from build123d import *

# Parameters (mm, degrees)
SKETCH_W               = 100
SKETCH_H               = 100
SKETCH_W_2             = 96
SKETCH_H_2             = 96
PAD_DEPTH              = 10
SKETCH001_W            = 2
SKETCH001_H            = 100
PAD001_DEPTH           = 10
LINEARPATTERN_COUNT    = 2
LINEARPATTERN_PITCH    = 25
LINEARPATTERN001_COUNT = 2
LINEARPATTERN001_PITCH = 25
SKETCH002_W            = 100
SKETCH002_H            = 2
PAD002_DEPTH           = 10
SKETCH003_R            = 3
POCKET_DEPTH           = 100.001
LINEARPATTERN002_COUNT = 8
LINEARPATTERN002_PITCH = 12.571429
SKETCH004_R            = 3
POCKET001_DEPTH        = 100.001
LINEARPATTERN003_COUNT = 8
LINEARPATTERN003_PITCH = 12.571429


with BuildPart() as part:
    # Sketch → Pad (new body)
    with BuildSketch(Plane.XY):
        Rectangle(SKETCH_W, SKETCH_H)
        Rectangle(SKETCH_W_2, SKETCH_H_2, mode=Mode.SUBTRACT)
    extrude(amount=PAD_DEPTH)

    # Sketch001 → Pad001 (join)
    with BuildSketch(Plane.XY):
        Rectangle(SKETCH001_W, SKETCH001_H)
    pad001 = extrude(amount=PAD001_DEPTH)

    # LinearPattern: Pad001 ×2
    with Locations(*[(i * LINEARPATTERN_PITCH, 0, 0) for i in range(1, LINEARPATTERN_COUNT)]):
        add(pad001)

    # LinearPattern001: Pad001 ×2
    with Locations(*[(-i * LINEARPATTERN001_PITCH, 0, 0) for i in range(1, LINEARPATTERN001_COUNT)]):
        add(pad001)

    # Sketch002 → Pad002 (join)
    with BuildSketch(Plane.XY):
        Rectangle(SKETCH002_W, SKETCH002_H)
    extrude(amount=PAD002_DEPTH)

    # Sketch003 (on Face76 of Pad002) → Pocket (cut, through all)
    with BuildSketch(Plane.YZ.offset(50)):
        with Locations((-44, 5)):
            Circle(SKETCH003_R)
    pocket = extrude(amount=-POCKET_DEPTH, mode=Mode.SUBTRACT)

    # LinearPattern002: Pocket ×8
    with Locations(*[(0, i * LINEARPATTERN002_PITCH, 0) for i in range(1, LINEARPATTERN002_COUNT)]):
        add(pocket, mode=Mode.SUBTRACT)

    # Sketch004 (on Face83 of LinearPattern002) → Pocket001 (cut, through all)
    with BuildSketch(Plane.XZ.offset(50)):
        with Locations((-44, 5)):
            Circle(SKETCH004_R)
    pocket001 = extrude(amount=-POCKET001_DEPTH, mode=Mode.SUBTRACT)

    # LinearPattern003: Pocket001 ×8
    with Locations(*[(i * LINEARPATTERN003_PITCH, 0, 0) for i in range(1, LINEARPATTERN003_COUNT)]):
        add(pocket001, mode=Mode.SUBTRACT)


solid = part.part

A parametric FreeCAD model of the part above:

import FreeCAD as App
import Part
import Sketcher

V = App.Vector
Q = App.Units.Quantity


def add_polygon(sketch, points):
    """Adds a closed chain of lines whose ends are joined by coincident constraints."""
    first, n = sketch.GeometryCount, len(points)
    for a, b in zip(points, points[1:] + points[:1]):
        sketch.addGeometry(Part.LineSegment(App.Vector(*a, 0), App.Vector(*b, 0)), False)
    for i in range(n):
        sketch.addConstraint(Sketcher.Constraint("Coincident", first + i, 2, first + (i + 1) % n, 1))

doc = App.newDocument("Part")
body = doc.addObject("PartDesign::Body", "Body")

# Sketch on XY plane
sketch1 = body.newObject("Sketcher::SketchObject", "Sketch")
sketch1.AttachmentSupport = (doc.getObject("XY_Plane"), [""])
sketch1.MapMode = "FlatFace"
add_polygon(sketch1, [(-50, 50), (-50, -50), (50, -50), (50, 50)])  # lines 0-3
add_polygon(sketch1, [(48, -48), (-48, -48), (-48, 48), (48, 48)])  # lines 4-7
sketch1.addConstraint([
    Sketcher.Constraint("Vertical", 0),
    Sketcher.Constraint("Horizontal", 1),
    Sketcher.Constraint("Vertical", 2),
    Sketcher.Constraint("Horizontal", 3),
    Sketcher.Constraint("Horizontal", 4),
    Sketcher.Constraint("Vertical", 5),
    Sketcher.Constraint("Horizontal", 6),
    Sketcher.Constraint("Vertical", 7),
    Sketcher.Constraint("Symmetric", 0, 2, 2, 2, -1, 1),
    Sketcher.Constraint("Symmetric", 4, 2, 6, 2, -1, 1),
    Sketcher.Constraint("Equal", 3, 0),
    Sketcher.Constraint("Equal", 6, 5),
    Sketcher.Constraint("DistanceX", 1, 1, 1, 2, Q("100 mm")),
    Sketcher.Constraint("DistanceX", 4, 2, 4, 1, Q("96 mm")),
])
pad1 = body.newObject("PartDesign::Pad", "Pad")
pad1.Profile = sketch1
pad1.Length = 10

# Sketch on XY plane
sketch2 = body.newObject("Sketcher::SketchObject", "Sketch001")
sketch2.AttachmentSupport = (doc.getObject("XY_Plane"), [""])
sketch2.MapMode = "FlatFace"
add_polygon(sketch2, [(-1, 50), (-1, -50), (1, -50), (1, 50)])  # lines 0-3
sketch2.addConstraint([
    Sketcher.Constraint("Vertical", 0),
    Sketcher.Constraint("Horizontal", 1),
    Sketcher.Constraint("Vertical", 2),
    Sketcher.Constraint("Horizontal", 3),
    Sketcher.Constraint("Symmetric", 0, 2, 2, 2, -1, 1),
    Sketcher.Constraint("DistanceX", 1, 1, 1, 2, Q("2 mm")),
    Sketcher.Constraint("DistanceY", 0, 2, 0, 1, Q("100 mm")),
])
pad2 = body.newObject("PartDesign::Pad", "Pad001")
pad2.Profile = sketch2
pad2.Length = 10
doc.recompute()

linearpattern = body.newObject("PartDesign::LinearPattern", "LinearPattern")
linearpattern.Originals = [pad2]
linearpattern.Direction = (doc.getObject("X_Axis"), [""])
linearpattern.Mode = "offset"
linearpattern.Offset = 25
linearpattern.Occurrences = 2
body.Tip = linearpattern
doc.recompute()

linearpattern2 = body.newObject("PartDesign::LinearPattern", "LinearPattern001")
linearpattern2.Originals = [pad2]
linearpattern2.Direction = (doc.getObject("X_Axis"), [""])
linearpattern2.Mode = "offset"
linearpattern2.Offset = 25
linearpattern2.Occurrences = 2
linearpattern2.Reversed = True
body.Tip = linearpattern2

# Sketch on XY plane
sketch3 = body.newObject("Sketcher::SketchObject", "Sketch002")
sketch3.AttachmentSupport = (doc.getObject("XY_Plane"), [""])
sketch3.MapMode = "FlatFace"
add_polygon(sketch3, [(-50, 1), (-50, -1), (50, -1), (50, 1)])  # lines 0-3
sketch3.addConstraint([
    Sketcher.Constraint("Vertical", 0),
    Sketcher.Constraint("Horizontal", 1),
    Sketcher.Constraint("Vertical", 2),
    Sketcher.Constraint("Horizontal", 3),
    Sketcher.Constraint("Symmetric", 0, 2, 2, 2, -1, 1),
    Sketcher.Constraint("DistanceX", 1, 1, 1, 2, Q("100 mm")),
    Sketcher.Constraint("DistanceY", 0, 2, 0, 1, Q("2 mm")),
])
pad3 = body.newObject("PartDesign::Pad", "Pad002")
pad3.Profile = sketch3
pad3.Length = 10

# Sketch on YZ plane
sketch4 = body.newObject("Sketcher::SketchObject", "Sketch003")
sketch4.AttachmentSupport = (doc.getObject("YZ_Plane"), [""])
sketch4.MapMode = "FlatFace"
sketch4.AttachmentOffset = App.Placement(V(0, 0, 50), App.Rotation())
sketch4.addGeometry(Part.Circle(V(-44, 5, 0), V(0, 0, 1), 3), False)
sketch4.addConstraint([
    Sketcher.Constraint("Diameter", 0, Q("6 mm")),
    Sketcher.Constraint("DistanceX", 0, 3, -1, 1, Q("44 mm")),
    Sketcher.Constraint("DistanceY", -1, 1, 0, 3, Q("5 mm")),
])
pocket1 = body.newObject("PartDesign::Pocket", "Pocket")
pocket1.Profile = sketch4
pocket1.Type = "ThroughAll"
doc.recompute()

linearpattern3 = body.newObject("PartDesign::LinearPattern", "LinearPattern002")
linearpattern3.Originals = [pocket1]
linearpattern3.Direction = (doc.getObject("Y_Axis"), [""])
linearpattern3.Mode = "offset"
linearpattern3.Offset = 12.571429
linearpattern3.Occurrences = 8
body.Tip = linearpattern3

# Sketch on XZ plane
sketch5 = body.newObject("Sketcher::SketchObject", "Sketch004")
sketch5.AttachmentSupport = (doc.getObject("XZ_Plane"), [""])
sketch5.MapMode = "FlatFace"
sketch5.AttachmentOffset = App.Placement(V(0, 0, 50), App.Rotation())
sketch5.addGeometry(Part.Circle(V(-44, 5, 0), V(0, 0, 1), 3), False)
sketch5.addConstraint([
    Sketcher.Constraint("Diameter", 0, Q("6 mm")),
    Sketcher.Constraint("DistanceX", 0, 3, -1, 1, Q("44 mm")),
    Sketcher.Constraint("DistanceY", -1, 1, 0, 3, Q("5 mm")),
])
pocket2 = body.newObject("PartDesign::Pocket", "Pocket001")
pocket2.Profile = sketch5
pocket2.Type = "ThroughAll"
doc.recompute()

linearpattern4 = body.newObject("PartDesign::LinearPattern", "LinearPattern003")
linearpattern4.Originals = [pocket2]
linearpattern4.Direction = (doc.getObject("X_Axis"), [""])
linearpattern4.Mode = "offset"
linearpattern4.Offset = 12.571429
linearpattern4.Occurrences = 8
body.Tip = linearpattern4

doc.recompute()
